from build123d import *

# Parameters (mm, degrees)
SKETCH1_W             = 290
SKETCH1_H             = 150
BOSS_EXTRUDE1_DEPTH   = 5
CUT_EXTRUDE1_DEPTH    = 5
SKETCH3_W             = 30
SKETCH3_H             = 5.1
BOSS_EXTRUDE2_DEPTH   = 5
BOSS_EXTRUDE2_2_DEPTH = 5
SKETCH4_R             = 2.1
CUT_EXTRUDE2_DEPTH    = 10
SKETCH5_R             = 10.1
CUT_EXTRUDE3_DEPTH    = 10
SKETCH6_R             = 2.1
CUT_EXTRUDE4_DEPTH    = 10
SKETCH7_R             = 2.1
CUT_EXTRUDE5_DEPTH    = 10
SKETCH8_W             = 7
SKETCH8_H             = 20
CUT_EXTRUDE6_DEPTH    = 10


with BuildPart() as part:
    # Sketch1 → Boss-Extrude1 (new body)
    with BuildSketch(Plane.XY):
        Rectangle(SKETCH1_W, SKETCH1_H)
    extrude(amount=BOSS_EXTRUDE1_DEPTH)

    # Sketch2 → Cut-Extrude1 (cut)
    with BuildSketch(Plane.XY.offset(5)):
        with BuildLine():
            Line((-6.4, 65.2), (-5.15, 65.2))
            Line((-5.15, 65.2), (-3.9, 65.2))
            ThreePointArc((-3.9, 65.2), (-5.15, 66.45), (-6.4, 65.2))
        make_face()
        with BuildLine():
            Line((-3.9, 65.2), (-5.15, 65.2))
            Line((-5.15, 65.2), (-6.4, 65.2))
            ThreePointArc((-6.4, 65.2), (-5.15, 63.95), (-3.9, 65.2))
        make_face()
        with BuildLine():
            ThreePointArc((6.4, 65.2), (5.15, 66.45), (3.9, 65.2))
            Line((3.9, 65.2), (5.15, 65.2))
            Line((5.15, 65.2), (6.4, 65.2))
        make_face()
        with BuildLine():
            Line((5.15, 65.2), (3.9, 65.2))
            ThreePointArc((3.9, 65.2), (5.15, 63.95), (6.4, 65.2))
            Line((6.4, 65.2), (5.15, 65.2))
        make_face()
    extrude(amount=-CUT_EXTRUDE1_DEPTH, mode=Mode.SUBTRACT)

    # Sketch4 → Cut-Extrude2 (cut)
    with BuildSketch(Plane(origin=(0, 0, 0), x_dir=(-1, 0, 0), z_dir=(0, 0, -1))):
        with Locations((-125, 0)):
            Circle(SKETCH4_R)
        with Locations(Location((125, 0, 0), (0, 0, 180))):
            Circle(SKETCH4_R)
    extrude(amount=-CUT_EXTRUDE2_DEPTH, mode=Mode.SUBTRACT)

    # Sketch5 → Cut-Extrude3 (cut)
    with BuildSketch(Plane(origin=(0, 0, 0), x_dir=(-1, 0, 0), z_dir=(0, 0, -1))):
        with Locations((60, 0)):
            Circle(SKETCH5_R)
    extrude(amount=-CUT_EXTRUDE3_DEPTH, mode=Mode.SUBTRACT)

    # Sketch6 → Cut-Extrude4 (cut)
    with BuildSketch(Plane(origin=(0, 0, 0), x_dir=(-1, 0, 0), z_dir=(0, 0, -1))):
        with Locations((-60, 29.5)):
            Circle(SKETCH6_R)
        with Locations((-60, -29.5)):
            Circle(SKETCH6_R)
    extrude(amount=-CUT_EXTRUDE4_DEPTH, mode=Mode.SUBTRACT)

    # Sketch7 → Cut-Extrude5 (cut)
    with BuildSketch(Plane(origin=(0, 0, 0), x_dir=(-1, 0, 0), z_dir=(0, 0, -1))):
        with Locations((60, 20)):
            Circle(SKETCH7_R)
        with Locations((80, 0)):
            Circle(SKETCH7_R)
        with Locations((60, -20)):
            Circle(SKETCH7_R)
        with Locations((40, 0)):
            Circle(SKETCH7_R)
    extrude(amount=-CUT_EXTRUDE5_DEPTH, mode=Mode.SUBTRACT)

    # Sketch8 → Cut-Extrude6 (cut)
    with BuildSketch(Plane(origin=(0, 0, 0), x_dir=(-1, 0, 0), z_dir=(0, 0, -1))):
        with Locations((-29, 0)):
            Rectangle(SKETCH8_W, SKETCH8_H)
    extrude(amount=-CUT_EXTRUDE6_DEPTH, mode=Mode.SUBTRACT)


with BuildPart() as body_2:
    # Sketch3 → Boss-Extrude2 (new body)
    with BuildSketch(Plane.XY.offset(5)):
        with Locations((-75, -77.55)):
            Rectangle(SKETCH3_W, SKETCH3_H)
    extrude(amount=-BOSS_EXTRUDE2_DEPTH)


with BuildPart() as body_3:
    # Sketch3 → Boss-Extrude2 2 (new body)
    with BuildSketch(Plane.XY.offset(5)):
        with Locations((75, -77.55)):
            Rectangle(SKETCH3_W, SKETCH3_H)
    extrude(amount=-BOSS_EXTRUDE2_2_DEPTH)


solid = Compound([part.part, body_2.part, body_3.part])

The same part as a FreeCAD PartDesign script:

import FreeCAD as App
import Part
import Sketcher

V = App.Vector
Q = App.Units.Quantity

doc = App.newDocument("Part")
body = doc.addObject("PartDesign::Body", "Body")

sketch1 = body.newObject("Sketcher::SketchObject", "Sketch")
sketch1.AttachmentSupport = (doc.getObject("XY_Plane"), [""])
sketch1.MapMode = "FlatFace"
sketch1.addGeometry([
    Part.LineSegment(V(-145, 75, 0), V(-145, -75, 0)),
    Part.LineSegment(V(-145, -75, 0), V(145, -75, 0)),
    Part.LineSegment(V(145, -75, 0), V(145, 75, 0)),
    Part.LineSegment(V(145, 75, 0), V(-145, 75, 0)),
], False)
sketch1.addConstraint([
    Sketcher.Constraint("Coincident", 0, 2, 1, 1),
    Sketcher.Constraint("Coincident", 1, 2, 2, 1),
    Sketcher.Constraint("Coincident", 2, 2, 3, 1),
    Sketcher.Constraint("Coincident", 3, 2, 0, 1),
    Sketcher.Constraint("Vertical", 0),
    Sketcher.Constraint("Horizontal", 1),
    Sketcher.Constraint("Vertical", 2),
    Sketcher.Constraint("Horizontal", 3),
    Sketcher.Constraint("Symmetric", 0, 2, 2, 2, -1, 1),
    Sketcher.Constraint("DistanceX", 1, 1, 1, 2, Q("290 mm")),
    Sketcher.Constraint("DistanceY", 0, 2, 0, 1, Q("150 mm")),
])
pad1 = body.newObject("PartDesign::Pad", "Pad")
pad1.Profile = sketch1
pad1.Length = 5

sketch2 = body.newObject("Sketcher::SketchObject", "Sketch001")
sketch2.AttachmentSupport = (doc.getObject("XY_Plane"), [""])
sketch2.MapMode = "FlatFace"
sketch2.AttachmentOffset = App.Placement(V(0, 0, 5), App.Rotation())
sketch2.addGeometry([
    Part.Circle(V(-5.2, 65.2, 0), V(0, 0, 1), 1.2),
    Part.Circle(V(5.2, 65.2, 0), V(0, 0, 1), 1.2),
], False)
sketch2.addConstraint([
    Sketcher.Constraint("Equal", 0, 1),
    Sketcher.Constraint("Symmetric", 0, 3, 1, 3, -2),
    Sketcher.Constraint("Diameter", 0, Q("2.5 mm")),
    Sketcher.Constraint("DistanceY", -1, 1, 0, 3, Q("65.2 mm")),
    Sketcher.Constraint("DistanceX", 0, 3, 1, 3, Q("10.3 mm")),
])
pocket1 = body.newObject("PartDesign::Pocket", "Pocket")
pocket1.Profile = sketch2
pocket1.Length = 5

sketch3 = body.newObject("Sketcher::SketchObject", "Sketch002")
sketch3.AttachmentSupport = (doc.getObject("XY_Plane"), [""])
sketch3.MapMode = "FlatFace"
sketch3.addGeometry([
    Part.Circle(V(125, 0, 0), V(0, 0, 1), 2.1),
    Part.Circle(V(-125, 0, 0), V(0, 0, 1), 2.1),
], False)
sketch3.addConstraint([
    Sketcher.Constraint("Equal", 0, 1),
    Sketcher.Constraint("Symmetric", 0, 3, 1, 3, -1, 1),
    Sketcher.Constraint("PointOnObject", 0, 3, -1),
    Sketcher.Constraint("Diameter", 0, Q("4.2 mm")),
    Sketcher.Constraint("DistanceX", -1, 1, 0, 3, Q("125 mm")),
])
pocket2 = body.newObject("PartDesign::Pocket", "Pocket001")
pocket2.Profile = sketch3
pocket2.Length = 10
pocket2.Reversed = True

sketch4 = body.newObject("Sketcher::SketchObject", "Sketch003")
sketch4.AttachmentSupport = (doc.getObject("XY_Plane"), [""])
sketch4.MapMode = "FlatFace"
sketch4.addGeometry(Part.Circle(V(-60, 0, 0), V(0, 0, 1), 10), False)
sketch4.addConstraint([
    Sketcher.Constraint("PointOnObject", 0, 3, -1),
    Sketcher.Constraint("Diameter", 0, Q("20.2 mm")),
    Sketcher.Constraint("DistanceX", 0, 3, -1, 1, Q("60 mm")),
])
pocket3 = body.newObject("PartDesign::Pocket", "Pocket002")
pocket3.Profile = sketch4
pocket3.Length = 10
pocket3.Reversed = True

sketch5 = body.newObject("Sketcher::SketchObject", "Sketch004")
sketch5.AttachmentSupport = (doc.getObject("XY_Plane"), [""])
sketch5.MapMode = "FlatFace"
sketch5.addGeometry([
    Part.Circle(V(60, 29.5, 0), V(0, 0, 1), 2.1),
    Part.Circle(V(60, -29.5, 0), V(0, 0, 1), 2.1),
], False)
sketch5.addConstraint([
    Sketcher.Constraint("Equal", 0, 1),
    Sketcher.Constraint("Symmetric", 0, 3, 1, 3, -1),
    Sketcher.Constraint("Diameter", 0, Q("4.2 mm")),
    Sketcher.Constraint("DistanceX", -1, 1, 0, 3, Q("60 mm")),
    Sketcher.Constraint("DistanceY", 1, 3, 0, 3, Q("59 mm")),
])
pocket4 = body.newObject("PartDesign::Pocket", "Pocket003")
pocket4.Profile = sketch5
pocket4.Length = 10
pocket4.Reversed = True

sketch6 = body.newObject("Sketcher::SketchObject", "Sketch005")
sketch6.AttachmentSupport = (doc.getObject("XY_Plane"), [""])
sketch6.MapMode = "FlatFace"
sketch6.addGeometry([
    Part.Circle(V(-60, 20, 0), V(0, 0, 1), 2.1),
    Part.Circle(V(-80, 0, 0), V(0, 0, 1), 2.1),
    Part.Circle(V(-60, -20, 0), V(0, 0, 1), 2.1),
    Part.Circle(V(-40, 0, 0), V(0, 0, 1), 2.1),
], False)
sketch6.addConstraint([
    Sketcher.Constraint("Equal", 0, 1),
    Sketcher.Constraint("Equal", 1, 2),
    Sketcher.Constraint("Equal", 2, 3),
    Sketcher.Constraint("Symmetric", 0, 3, 2, 3, -1),
    Sketcher.Constraint("PointOnObject", 1, 3, -1),
    Sketcher.Constraint("PointOnObject", 3, 3, -1),
    Sketcher.Constraint("Diameter", 0, Q("4.2 mm")),
    Sketcher.Constraint("DistanceX", 0, 3, -1, 1, Q("60 mm")),
    Sketcher.Constraint("DistanceY", -1, 1, 0, 3, Q("20 mm")),
    Sketcher.Constraint("DistanceX", 1, 3, -1, 1, Q("80 mm")),
    Sketcher.Constraint("DistanceX", 3, 3, -1, 1, Q("40 mm")),
])
pocket5 = body.newObject("PartDesign::Pocket", "Pocket004")
pocket5.Profile = sketch6
pocket5.Length = 10
pocket5.Reversed = True

sketch7 = body.newObject("Sketcher::SketchObject", "Sketch006")
sketch7.AttachmentSupport = (doc.getObject("XY_Plane"), [""])
sketch7.MapMode = "FlatFace"
sketch7.addGeometry([
    Part.LineSegment(V(32, 10, 0), V(32, -10, 0)),
    Part.LineSegment(V(32, -10, 0), V(26, -10, 0)),
    Part.LineSegment(V(26, -10, 0), V(26, 10, 0)),
    Part.LineSegment(V(26, 10, 0), V(32, 10, 0)),
], False)
sketch7.addConstraint([
    Sketcher.Constraint("Coincident", 0, 2, 1, 1),
    Sketcher.Constraint("Coincident", 1, 2, 2, 1),
    Sketcher.Constraint("Coincident", 2, 2, 3, 1),
    Sketcher.Constraint("Coincident", 3, 2, 0, 1),
    Sketcher.Constraint("Vertical", 0),
    Sketcher.Constraint("Horizontal", 1),
    Sketcher.Constraint("Vertical", 2),
    Sketcher.Constraint("Horizontal", 3),
    Sketcher.Constraint("DistanceX", 1, 2, 1, 1, Q("7 mm")),
    Sketcher.Constraint("DistanceY", 0, 2, 0, 1, Q("20 mm")),
    Sketcher.Constraint("DistanceY", 0, 2, -1, 1, Q("10 mm")),
    Sketcher.Constraint("DistanceX", -1, 1, 0, 2, Q("32.5 mm")),
])
pocket6 = body.newObject("PartDesign::Pocket", "Pocket005")
pocket6.Profile = sketch7
pocket6.Length = 10
pocket6.Reversed = True
body2 = doc.addObject("PartDesign::Body", "Body001")

sketch8 = body2.newObject("Sketcher::SketchObject", "Sketch007")
sketch8.AttachmentSupport = (doc.getObject("XY_Plane001"), [""])
sketch8.MapMode = "FlatFace"
sketch8.AttachmentOffset = App.Placement(V(0, 0, 5), App.Rotation())
sketch8.addGeometry([
    Part.LineSegment(V(-90, -75, 0), V(-90, -80, 0)),
    Part.LineSegment(V(-90, -80, 0), V(-60, -80, 0)),
    Part.LineSegment(V(-60, -80, 0), V(-60, -75, 0)),
    Part.LineSegment(V(-60, -75, 0), V(-90, -75, 0)),
], False)
sketch8.addConstraint([
    Sketcher.Constraint("Coincident", 0, 2, 1, 1),
    Sketcher.Constraint("Coincident", 1, 2, 2, 1),
    Sketcher.Constraint("Coincident", 2, 2, 3, 1),
    Sketcher.Constraint("Coincident", 3, 2, 0, 1),
    Sketcher.Constraint("Vertical", 0),
    Sketcher.Constraint("Horizontal", 1),
    Sketcher.Constraint("Vertical", 2),
    Sketcher.Constraint("Horizontal", 3),
    Sketcher.Constraint("DistanceX", 1, 1, 1, 2, Q("30 mm")),
    Sketcher.Constraint("DistanceY", 0, 2, 0, 1, Q("5.1 mm")),
    Sketcher.Constraint("DistanceX", 0, 2, -1, 1, Q("90 mm")),
    Sketcher.Constraint("DistanceY", 2, 2, -1, 1, Q("75 mm")),
])
pad2 = body2.newObject("PartDesign::Pad", "Pad001")
pad2.Profile = sketch8
pad2.Length = 5
pad2.Reversed = True
body3 = doc.addObject("PartDesign::Body", "Body002")

sketch9 = body3.newObject("Sketcher::SketchObject", "Sketch008")
sketch9.AttachmentSupport = (doc.getObject("XY_Plane002"), [""])
sketch9.MapMode = "FlatFace"
sketch9.AttachmentOffset = App.Placement(V(0, 0, 5), App.Rotation())
sketch9.addGeometry([
    Part.LineSegment(V(60, -75, 0), V(60, -80, 0)),
    Part.LineSegment(V(60, -80, 0), V(90, -80, 0)),
    Part.LineSegment(V(90, -80, 0), V(90, -75, 0)),
    Part.LineSegment(V(90, -75, 0), V(60, -75, 0)),
], False)
sketch9.addConstraint([
    Sketcher.Constraint("Coincident", 0, 2, 1, 1),
    Sketcher.Constraint("Coincident", 1, 2, 2, 1),
    Sketcher.Constraint("Coincident", 2, 2, 3, 1),
    Sketcher.Constraint("Coincident", 3, 2, 0, 1),
    Sketcher.Constraint("Vertical", 0),
    Sketcher.Constraint("Horizontal", 1),
    Sketcher.Constraint("Vertical", 2),
    Sketcher.Constraint("Horizontal", 3),
    Sketcher.Constraint("DistanceX", 1, 1, 1, 2, Q("30 mm")),
    Sketcher.Constraint("DistanceY", 0, 2, 0, 1, Q("5.1 mm")),
    Sketcher.Constraint("DistanceX", -1, 1, 0, 2, Q("60 mm")),
    Sketcher.Constraint("DistanceY", 2, 2, -1, 1, Q("75 mm")),
])
pad3 = body3.newObject("PartDesign::Pad", "Pad002")
pad3.Profile = sketch9
pad3.Length = 5
pad3.Reversed = True

doc.recompute()
